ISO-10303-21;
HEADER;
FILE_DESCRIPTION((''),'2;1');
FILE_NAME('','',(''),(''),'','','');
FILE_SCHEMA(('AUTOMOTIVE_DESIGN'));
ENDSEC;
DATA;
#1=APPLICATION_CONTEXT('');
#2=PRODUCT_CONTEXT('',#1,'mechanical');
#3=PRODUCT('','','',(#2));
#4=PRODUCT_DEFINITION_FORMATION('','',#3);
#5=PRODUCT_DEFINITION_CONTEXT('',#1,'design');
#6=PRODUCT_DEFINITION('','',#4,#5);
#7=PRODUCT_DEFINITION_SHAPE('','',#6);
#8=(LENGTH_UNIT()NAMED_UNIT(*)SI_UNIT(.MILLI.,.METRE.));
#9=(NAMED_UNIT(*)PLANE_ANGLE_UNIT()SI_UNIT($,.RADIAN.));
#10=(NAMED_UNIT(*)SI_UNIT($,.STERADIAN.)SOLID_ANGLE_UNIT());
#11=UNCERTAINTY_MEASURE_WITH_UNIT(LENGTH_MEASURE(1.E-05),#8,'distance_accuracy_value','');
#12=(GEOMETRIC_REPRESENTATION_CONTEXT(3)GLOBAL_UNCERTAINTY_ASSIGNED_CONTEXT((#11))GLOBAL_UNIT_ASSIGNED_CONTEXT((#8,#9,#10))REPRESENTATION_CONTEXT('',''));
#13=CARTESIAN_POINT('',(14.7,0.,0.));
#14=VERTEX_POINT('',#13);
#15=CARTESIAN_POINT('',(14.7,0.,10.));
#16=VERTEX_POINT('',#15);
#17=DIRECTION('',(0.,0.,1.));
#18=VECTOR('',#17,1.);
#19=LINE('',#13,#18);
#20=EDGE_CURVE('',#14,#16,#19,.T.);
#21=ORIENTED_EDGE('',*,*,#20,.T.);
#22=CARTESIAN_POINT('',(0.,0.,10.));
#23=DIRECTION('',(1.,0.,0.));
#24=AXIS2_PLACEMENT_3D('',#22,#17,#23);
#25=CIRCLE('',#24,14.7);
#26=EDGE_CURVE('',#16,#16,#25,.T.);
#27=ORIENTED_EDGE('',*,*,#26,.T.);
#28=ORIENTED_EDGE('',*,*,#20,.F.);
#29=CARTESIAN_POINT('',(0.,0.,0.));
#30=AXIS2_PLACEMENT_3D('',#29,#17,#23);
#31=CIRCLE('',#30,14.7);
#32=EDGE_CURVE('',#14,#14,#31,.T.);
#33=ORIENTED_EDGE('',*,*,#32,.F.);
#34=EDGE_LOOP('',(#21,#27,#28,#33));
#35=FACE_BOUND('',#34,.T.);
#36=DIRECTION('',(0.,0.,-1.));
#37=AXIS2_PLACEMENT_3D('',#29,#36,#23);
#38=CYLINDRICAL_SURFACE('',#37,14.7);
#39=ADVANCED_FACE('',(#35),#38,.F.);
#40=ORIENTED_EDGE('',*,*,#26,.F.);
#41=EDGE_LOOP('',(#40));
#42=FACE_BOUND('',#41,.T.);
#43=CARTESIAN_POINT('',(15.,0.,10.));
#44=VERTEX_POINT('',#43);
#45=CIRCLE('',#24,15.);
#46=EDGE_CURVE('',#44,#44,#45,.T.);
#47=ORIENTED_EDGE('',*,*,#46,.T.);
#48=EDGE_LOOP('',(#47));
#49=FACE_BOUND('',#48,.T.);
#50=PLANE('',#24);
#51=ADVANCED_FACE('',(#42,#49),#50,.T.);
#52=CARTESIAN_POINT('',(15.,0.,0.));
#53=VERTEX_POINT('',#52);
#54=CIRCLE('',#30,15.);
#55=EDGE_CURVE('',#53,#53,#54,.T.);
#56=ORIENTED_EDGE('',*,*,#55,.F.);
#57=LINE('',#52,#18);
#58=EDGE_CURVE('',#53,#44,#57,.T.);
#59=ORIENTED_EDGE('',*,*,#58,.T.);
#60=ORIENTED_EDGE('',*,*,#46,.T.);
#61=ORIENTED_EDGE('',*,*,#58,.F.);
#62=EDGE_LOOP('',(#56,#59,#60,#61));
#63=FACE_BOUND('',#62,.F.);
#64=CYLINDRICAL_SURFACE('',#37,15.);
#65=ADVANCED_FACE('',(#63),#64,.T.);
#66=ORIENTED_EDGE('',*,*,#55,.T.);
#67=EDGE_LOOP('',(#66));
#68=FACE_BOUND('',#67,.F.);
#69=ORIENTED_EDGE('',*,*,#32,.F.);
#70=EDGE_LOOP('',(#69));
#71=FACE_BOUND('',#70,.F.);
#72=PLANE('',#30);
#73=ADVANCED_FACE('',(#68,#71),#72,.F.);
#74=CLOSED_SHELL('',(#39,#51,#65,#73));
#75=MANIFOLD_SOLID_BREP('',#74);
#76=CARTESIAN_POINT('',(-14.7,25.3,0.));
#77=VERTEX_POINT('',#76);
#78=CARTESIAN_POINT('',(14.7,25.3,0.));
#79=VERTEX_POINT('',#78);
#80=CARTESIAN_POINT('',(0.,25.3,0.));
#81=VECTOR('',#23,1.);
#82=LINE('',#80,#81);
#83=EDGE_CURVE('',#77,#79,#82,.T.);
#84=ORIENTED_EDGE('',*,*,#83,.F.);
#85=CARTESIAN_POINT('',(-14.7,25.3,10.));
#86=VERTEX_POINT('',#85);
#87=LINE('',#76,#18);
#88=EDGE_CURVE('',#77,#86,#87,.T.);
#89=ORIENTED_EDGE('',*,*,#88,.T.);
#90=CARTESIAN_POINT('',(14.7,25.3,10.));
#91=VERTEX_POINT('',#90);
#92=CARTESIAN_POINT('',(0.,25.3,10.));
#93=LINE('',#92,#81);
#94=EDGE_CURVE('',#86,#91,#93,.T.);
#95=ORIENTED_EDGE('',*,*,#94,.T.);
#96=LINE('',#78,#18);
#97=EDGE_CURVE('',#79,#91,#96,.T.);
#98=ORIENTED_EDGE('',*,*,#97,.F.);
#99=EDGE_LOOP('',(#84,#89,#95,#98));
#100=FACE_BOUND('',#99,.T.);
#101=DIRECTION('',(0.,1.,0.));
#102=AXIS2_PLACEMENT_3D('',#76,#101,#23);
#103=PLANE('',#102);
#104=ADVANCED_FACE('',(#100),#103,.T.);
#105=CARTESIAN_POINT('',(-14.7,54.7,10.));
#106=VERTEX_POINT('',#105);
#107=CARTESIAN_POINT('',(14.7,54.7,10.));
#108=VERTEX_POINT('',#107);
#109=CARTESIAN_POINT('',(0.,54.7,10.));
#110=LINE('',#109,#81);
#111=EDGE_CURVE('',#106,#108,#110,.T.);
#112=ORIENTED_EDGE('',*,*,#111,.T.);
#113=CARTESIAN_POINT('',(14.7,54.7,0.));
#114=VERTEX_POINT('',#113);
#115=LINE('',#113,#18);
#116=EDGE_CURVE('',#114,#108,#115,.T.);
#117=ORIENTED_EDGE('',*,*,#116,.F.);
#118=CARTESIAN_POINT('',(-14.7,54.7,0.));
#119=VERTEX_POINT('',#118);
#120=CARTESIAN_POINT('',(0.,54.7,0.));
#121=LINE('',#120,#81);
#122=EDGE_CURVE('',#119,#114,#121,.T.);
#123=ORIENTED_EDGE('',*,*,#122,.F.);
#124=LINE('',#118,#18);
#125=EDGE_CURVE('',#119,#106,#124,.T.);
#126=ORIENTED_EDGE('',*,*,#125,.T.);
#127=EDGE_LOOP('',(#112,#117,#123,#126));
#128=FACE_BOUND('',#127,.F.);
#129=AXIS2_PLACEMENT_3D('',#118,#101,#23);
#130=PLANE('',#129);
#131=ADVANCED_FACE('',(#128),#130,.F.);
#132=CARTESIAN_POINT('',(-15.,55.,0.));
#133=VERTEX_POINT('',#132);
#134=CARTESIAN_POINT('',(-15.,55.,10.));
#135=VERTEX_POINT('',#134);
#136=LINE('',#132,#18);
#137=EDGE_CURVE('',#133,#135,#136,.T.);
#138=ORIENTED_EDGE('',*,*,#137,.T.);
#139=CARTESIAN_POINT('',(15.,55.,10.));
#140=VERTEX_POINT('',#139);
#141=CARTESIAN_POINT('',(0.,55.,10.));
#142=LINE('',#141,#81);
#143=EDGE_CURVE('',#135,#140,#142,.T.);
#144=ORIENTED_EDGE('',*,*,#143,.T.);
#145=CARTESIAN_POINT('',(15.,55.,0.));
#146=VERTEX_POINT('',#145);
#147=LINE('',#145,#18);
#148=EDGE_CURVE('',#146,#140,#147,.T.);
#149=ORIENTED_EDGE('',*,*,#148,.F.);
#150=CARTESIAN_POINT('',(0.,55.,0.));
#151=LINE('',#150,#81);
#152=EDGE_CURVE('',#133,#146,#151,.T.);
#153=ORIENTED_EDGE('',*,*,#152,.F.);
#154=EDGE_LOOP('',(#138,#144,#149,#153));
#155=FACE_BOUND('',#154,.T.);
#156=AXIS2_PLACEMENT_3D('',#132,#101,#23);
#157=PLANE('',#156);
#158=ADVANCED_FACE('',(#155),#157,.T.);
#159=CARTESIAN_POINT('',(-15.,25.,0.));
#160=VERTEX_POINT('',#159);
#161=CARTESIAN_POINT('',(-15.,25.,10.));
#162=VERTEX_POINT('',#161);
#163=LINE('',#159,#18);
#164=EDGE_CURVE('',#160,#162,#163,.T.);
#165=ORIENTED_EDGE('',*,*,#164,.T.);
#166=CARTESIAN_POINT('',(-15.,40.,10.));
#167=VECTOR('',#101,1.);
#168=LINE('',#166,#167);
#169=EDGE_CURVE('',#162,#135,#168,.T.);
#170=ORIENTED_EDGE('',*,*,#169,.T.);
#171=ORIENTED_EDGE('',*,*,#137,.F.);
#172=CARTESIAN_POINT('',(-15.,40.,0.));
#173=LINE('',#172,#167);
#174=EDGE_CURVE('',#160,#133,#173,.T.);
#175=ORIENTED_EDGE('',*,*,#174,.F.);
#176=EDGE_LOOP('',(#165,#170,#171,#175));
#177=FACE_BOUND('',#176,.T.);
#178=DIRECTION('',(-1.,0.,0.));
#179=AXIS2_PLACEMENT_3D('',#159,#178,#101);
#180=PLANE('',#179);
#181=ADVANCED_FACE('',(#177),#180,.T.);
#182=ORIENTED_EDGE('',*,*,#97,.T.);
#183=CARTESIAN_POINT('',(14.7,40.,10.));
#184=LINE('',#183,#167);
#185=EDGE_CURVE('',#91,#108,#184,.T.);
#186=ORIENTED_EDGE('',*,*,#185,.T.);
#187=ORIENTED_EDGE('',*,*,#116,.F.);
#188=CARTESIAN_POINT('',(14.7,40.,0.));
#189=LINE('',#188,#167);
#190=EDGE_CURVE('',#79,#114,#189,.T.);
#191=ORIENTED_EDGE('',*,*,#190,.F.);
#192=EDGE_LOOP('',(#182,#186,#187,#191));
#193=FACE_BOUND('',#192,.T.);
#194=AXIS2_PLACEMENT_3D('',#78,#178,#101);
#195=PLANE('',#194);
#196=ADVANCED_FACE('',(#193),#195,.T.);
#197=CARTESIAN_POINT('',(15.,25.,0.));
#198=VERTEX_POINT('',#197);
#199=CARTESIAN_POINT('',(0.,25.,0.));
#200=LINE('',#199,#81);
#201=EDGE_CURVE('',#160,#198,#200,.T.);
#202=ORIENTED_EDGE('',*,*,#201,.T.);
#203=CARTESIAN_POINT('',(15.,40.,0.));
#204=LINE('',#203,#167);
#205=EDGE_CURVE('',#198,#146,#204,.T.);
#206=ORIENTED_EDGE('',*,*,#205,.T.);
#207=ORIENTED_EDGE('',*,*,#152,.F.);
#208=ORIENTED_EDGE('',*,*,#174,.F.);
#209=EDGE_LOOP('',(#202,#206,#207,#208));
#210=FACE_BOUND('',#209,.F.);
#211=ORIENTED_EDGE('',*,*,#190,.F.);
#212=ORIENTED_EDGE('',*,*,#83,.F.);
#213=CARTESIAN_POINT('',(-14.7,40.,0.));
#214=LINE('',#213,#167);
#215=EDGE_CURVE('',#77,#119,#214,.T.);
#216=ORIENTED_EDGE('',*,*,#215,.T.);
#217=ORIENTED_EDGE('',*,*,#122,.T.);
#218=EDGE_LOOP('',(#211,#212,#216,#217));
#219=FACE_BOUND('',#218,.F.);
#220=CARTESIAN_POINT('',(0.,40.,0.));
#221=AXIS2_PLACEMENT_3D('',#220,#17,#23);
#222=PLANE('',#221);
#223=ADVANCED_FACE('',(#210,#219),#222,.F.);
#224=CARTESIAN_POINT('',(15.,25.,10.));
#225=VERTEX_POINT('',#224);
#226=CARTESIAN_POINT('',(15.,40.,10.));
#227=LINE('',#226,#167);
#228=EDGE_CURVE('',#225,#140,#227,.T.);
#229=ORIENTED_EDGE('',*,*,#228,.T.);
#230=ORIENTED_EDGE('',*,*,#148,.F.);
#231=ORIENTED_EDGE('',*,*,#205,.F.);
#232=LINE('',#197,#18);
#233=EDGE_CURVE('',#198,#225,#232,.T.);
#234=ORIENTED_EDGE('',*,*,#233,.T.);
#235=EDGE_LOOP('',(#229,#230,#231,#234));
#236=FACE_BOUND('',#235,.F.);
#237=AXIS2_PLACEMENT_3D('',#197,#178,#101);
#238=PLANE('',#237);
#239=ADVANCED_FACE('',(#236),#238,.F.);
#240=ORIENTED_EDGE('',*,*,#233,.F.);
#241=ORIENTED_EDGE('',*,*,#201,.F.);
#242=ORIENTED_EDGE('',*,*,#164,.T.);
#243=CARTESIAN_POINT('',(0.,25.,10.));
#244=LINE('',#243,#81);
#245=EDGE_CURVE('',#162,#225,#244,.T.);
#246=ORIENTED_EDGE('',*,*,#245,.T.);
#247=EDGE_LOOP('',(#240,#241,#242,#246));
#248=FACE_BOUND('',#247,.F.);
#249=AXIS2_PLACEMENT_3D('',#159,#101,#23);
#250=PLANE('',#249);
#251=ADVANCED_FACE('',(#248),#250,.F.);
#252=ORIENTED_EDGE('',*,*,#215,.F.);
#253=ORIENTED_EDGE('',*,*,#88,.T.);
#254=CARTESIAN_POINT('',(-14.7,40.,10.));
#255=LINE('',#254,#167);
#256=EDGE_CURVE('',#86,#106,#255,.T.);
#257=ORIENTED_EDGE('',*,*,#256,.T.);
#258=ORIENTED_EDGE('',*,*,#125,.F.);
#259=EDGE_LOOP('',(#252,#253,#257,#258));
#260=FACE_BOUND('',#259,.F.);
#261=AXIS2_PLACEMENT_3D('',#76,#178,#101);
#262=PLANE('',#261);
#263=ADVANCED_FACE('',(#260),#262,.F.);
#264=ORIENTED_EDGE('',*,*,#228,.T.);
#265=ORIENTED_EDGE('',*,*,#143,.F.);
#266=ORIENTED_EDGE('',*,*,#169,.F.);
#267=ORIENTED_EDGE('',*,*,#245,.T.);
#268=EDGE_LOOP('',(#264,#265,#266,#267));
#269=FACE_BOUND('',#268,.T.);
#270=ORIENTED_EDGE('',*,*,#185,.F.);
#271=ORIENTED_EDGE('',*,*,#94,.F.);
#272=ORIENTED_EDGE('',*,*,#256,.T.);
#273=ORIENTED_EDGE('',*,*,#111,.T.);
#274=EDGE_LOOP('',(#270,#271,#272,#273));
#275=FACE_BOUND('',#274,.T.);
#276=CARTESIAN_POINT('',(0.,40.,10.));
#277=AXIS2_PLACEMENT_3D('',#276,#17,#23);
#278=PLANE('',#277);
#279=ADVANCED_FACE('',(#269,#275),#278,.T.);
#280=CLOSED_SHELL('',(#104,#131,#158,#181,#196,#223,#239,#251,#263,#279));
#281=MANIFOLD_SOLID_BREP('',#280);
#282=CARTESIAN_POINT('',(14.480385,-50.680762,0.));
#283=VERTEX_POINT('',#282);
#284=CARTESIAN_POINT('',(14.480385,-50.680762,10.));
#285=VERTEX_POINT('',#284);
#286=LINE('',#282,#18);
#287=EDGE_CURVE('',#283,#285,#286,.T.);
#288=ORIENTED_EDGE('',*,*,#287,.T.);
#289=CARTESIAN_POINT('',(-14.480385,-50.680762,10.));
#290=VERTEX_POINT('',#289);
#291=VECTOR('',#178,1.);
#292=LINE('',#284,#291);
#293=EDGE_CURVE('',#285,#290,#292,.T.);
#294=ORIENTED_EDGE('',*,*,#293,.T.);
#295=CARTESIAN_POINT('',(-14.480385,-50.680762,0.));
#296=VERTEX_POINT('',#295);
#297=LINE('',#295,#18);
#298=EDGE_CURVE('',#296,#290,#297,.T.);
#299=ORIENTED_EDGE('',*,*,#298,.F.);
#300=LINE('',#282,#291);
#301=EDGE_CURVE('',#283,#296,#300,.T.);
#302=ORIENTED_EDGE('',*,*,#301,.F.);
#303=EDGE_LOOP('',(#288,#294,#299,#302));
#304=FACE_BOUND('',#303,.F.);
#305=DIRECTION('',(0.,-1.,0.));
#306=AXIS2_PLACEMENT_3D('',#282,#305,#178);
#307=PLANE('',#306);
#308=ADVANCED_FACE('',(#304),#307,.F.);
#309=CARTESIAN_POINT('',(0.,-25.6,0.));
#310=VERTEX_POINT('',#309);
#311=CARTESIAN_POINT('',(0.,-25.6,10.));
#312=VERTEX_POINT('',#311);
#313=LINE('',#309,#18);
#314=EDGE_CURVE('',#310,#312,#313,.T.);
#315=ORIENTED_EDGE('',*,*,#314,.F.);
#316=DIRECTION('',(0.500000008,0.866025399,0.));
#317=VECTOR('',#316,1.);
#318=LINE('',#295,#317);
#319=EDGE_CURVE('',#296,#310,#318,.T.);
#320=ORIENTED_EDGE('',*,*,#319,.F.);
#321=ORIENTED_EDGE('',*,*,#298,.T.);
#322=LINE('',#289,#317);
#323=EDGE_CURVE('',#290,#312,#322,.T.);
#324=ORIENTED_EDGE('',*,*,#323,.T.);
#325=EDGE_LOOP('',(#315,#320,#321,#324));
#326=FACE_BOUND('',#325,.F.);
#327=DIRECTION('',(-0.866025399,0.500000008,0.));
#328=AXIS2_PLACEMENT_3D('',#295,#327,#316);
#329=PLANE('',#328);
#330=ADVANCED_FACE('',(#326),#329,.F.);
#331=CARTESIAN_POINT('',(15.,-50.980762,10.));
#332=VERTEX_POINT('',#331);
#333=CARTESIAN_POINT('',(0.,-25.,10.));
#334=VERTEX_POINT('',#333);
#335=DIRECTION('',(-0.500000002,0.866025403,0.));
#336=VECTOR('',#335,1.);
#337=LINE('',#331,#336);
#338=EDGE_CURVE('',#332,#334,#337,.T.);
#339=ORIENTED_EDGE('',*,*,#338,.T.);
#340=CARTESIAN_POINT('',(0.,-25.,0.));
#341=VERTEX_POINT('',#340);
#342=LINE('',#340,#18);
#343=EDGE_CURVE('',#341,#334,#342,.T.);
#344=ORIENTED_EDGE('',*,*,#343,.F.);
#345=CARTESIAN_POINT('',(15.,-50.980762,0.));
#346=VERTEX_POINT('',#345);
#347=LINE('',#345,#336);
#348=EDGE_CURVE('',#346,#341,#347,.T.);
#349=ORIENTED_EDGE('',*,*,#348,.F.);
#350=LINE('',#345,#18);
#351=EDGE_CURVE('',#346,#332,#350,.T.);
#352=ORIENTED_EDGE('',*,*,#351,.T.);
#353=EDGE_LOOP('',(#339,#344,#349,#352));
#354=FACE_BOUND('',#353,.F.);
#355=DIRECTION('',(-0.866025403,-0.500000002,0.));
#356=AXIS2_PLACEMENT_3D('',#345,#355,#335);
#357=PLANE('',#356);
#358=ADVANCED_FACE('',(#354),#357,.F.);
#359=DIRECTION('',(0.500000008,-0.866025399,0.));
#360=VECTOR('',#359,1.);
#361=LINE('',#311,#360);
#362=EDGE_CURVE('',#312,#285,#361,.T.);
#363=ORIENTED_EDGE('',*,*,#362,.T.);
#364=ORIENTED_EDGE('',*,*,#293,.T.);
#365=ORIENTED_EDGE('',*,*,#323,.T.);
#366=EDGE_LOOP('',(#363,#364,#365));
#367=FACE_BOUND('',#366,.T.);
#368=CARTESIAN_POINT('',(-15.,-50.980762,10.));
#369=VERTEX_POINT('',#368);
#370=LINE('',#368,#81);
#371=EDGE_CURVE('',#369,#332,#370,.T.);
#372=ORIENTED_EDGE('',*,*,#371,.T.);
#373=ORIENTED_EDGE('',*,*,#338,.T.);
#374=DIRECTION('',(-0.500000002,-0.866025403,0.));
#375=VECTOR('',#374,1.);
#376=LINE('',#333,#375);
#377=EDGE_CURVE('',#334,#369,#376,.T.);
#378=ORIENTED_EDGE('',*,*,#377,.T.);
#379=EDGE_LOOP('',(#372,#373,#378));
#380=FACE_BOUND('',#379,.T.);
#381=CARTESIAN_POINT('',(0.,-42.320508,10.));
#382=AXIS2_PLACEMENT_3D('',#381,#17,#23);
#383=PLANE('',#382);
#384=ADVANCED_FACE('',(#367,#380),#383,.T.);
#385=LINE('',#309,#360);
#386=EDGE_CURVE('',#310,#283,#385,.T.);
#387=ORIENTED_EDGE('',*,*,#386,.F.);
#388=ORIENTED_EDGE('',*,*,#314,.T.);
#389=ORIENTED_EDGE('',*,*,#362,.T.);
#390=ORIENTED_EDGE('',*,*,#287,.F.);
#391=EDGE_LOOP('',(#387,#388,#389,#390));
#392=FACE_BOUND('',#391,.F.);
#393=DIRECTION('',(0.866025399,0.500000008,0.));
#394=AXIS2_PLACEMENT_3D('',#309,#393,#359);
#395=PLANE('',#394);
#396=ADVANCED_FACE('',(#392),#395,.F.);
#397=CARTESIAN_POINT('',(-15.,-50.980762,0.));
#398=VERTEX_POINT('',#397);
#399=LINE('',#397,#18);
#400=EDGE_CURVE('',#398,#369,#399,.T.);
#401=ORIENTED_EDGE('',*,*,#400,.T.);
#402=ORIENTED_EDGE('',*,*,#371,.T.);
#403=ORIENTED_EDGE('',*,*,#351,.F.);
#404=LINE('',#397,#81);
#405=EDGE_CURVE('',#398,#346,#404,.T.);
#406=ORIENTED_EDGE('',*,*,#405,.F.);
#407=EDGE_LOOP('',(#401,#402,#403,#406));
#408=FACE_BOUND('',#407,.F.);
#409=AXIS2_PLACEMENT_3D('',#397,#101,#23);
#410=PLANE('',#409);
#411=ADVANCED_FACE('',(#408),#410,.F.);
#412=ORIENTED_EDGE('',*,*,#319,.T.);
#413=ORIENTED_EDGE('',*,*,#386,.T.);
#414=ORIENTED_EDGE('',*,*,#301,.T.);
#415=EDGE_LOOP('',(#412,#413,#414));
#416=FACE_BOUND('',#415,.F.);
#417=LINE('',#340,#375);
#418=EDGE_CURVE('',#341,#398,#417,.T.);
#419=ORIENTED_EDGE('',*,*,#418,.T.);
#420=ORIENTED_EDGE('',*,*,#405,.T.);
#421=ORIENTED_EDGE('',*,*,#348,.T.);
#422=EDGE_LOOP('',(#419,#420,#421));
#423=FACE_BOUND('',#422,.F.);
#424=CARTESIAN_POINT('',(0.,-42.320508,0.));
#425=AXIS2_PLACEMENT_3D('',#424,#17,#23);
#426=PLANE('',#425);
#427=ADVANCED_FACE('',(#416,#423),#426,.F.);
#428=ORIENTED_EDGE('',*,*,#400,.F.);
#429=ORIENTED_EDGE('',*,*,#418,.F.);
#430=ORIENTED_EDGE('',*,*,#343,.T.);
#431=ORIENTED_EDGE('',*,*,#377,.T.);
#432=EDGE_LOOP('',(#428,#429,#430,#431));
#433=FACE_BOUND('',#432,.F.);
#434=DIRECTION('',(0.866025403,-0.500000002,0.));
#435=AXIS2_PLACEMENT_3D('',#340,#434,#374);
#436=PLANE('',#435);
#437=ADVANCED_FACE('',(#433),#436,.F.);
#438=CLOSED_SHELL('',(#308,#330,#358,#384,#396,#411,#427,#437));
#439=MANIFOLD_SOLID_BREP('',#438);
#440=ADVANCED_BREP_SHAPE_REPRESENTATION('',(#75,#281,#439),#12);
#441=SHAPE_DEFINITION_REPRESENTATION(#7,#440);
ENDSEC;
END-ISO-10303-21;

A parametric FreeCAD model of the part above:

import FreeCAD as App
import Part
import Sketcher

V = App.Vector
Q = App.Units.Quantity

doc = App.newDocument("Part")
params = doc.addObject("Spreadsheet::Sheet", "Params")
for row, (alias, value) in enumerate([
    ("sketch1_diameter", "30 mm"),
    ("sketch1_diameter2", "29.4 mm"),
    ("sketch1_width", "30 mm"),
    ("sketch1_width2", "29.4 mm"),
    ("pad1_length", "10 mm"),
], start=1):
    params.set(f"A{row}", alias)
    params.set(f"B{row}", "=" + value)
    params.setAlias(f"B{row}", alias)

body = doc.addObject("PartDesign::Body", "Body")
body.AllowCompound = True

# Sketch on XY plane
sketch1 = body.newObject("Sketcher::SketchObject", "Sketch")
sketch1.AttachmentSupport = (doc.getObject("XY_Plane"), [""])
sketch1.MapMode = "FlatFace"
sketch1.addGeometry(Part.Circle(V(0, 0, 0), V(0, 0, 1), 15), False)
sketch1.addGeometry(Part.Circle(V(0, 0, 0), V(0, 0, 1), 15), False)
sketch1.addGeometry(Part.LineSegment(V(-15, 55, 0), V(-15, 25, 0)), False)
sketch1.addGeometry(Part.LineSegment(V(-15, 25, 0), V(15, 25, 0)), False)
sketch1.addGeometry(Part.LineSegment(V(15, 25, 0), V(15, 55, 0)), False)
sketch1.addGeometry(Part.LineSegment(V(15, 55, 0), V(-15, 55, 0)), False)
sketch1.addGeometry(Part.LineSegment(V(15, 25, 0), V(-15, 25, 0)), False)
sketch1.addGeometry(Part.LineSegment(V(-15, 25, 0), V(-15, 55, 0)), False)
sketch1.addGeometry(Part.LineSegment(V(-15, 55, 0), V(15, 55, 0)), False)
sketch1.addGeometry(Part.LineSegment(V(15, 55, 0), V(15, 25, 0)), False)
sketch1.addGeometry(Part.LineSegment(V(15, -51, 0), V(0, -25, 0)), False)
sketch1.addGeometry(Part.LineSegment(V(0, -25, 0), V(-15, -51, 0)), False)
sketch1.addGeometry(Part.LineSegment(V(-15, -51, 0), V(15, -51, 0)), False)
sketch1.addGeometry(Part.LineSegment(V(14, -51, 0), V(-14, -51, 0)), False)
sketch1.addGeometry(Part.LineSegment(V(-14, -51, 0), V(0, -26, 0)), False)
sketch1.addGeometry(Part.LineSegment(V(0, -26, 0), V(14, -51, 0)), False)
sketch1.addConstraint(Sketcher.Constraint("Coincident", 2, 2, 3, 1))
sketch1.addConstraint(Sketcher.Constraint("Coincident", 3, 2, 4, 1))
sketch1.addConstraint(Sketcher.Constraint("Coincident", 4, 2, 5, 1))
sketch1.addConstraint(Sketcher.Constraint("Coincident", 5, 2, 2, 1))
sketch1.addConstraint(Sketcher.Constraint("Coincident", 6, 2, 7, 1))
sketch1.addConstraint(Sketcher.Constraint("Coincident", 7, 2, 8, 1))
sketch1.addConstraint(Sketcher.Constraint("Coincident", 8, 2, 9, 1))
sketch1.addConstraint(Sketcher.Constraint("Coincident", 9, 2, 6, 1))
sketch1.addConstraint(Sketcher.Constraint("Coincident", 10, 2, 11, 1))
sketch1.addConstraint(Sketcher.Constraint("Coincident", 11, 2, 12, 1))
sketch1.addConstraint(Sketcher.Constraint("Coincident", 12, 2, 10, 1))
sketch1.addConstraint(Sketcher.Constraint("Coincident", 13, 2, 14, 1))
sketch1.addConstraint(Sketcher.Constraint("Coincident", 14, 2, 15, 1))
sketch1.addConstraint(Sketcher.Constraint("Coincident", 15, 2, 13, 1))
sketch1.addConstraint(Sketcher.Constraint("Vertical", 2))
sketch1.addConstraint(Sketcher.Constraint("Horizontal", 3))
sketch1.addConstraint(Sketcher.Constraint("Vertical", 4))
sketch1.addConstraint(Sketcher.Constraint("Horizontal", 5))
sketch1.addConstraint(Sketcher.Constraint("Horizontal", 6))
sketch1.addConstraint(Sketcher.Constraint("Vertical", 7))
sketch1.addConstraint(Sketcher.Constraint("Horizontal", 8))
sketch1.addConstraint(Sketcher.Constraint("Vertical", 9))
sketch1.addConstraint(Sketcher.Constraint("Horizontal", 12))
sketch1.addConstraint(Sketcher.Constraint("Horizontal", 13))
sketch1.addConstraint(Sketcher.Constraint("Coincident", 0, 3, -1, 1))
sketch1.addConstraint(Sketcher.Constraint("Coincident", 1, 3, -1, 1))
sketch1.addConstraint(Sketcher.Constraint("PointOnObject", 10, 2, -2))
sketch1.addConstraint(Sketcher.Constraint("PointOnObject", 14, 2, -2))
sketch1.addConstraint(Sketcher.Constraint("Parallel", 11, 14))
sketch1.addConstraint(Sketcher.Constraint("Parallel", 10, 15))
sketch1.addConstraint(Sketcher.Constraint("Vertical", 5, 2, 11, 2))
sketch1.addConstraint(Sketcher.Constraint("Vertical", 4, 2, 12, 2))
sketch1.addConstraint(Sketcher.Constraint("Equal", 12, 2))
sketch1.addConstraint(Sketcher.Constraint("Equal", 8, 7))
sketch1.addConstraint(Sketcher.Constraint("Equal", 10, 11))
sketch1.addConstraint(Sketcher.Constraint("Diameter", 0, Q("30 mm")))
sketch1.addConstraint(Sketcher.Constraint("Diameter", 1, Q("29.4 mm")))
sketch1.addConstraint(Sketcher.Constraint("DistanceX", 3, 1, 3, 2, Q("30 mm")))
sketch1.addConstraint(Sketcher.Constraint("Angle", 10, Q("120 deg")))
sketch1.addConstraint(Sketcher.Constraint("DistanceX", 6, 2, 6, 1, Q("29.4 mm")))
sketch1.addConstraint(Sketcher.Constraint("DistanceY", -1, 1, 2, 2, Q("25 mm")))
sketch1.addConstraint(Sketcher.Constraint("DistanceY", 10, 2, -1, 1, Q("25 mm")))
sketch1.addConstraint(Sketcher.Constraint("DistanceX", 6, 2, -1, 1, Q("14.7 mm")))
sketch1.addConstraint(Sketcher.Constraint("DistanceY", -1, 1, 6, 2, Q("25.3 mm")))
sketch1.addConstraint(Sketcher.Constraint("DistanceY", 14, 2, -1, 1, Q("25.6 mm")))
sketch1.addConstraint(Sketcher.Constraint("DistanceY", 11, 2, 13, 2, Q("0.3 mm")))
sketch1.setExpression("Constraints[35]", "Params.sketch1_diameter")
sketch1.setExpression("Constraints[36]", "Params.sketch1_diameter2")
sketch1.setExpression("Constraints[37]", "Params.sketch1_width")
sketch1.setExpression("Constraints[39]", "Params.sketch1_width2")
pad1 = body.newObject("PartDesign::Pad", "Pad")
pad1.Profile = sketch1
pad1.setExpression("Length", "Params.pad1_length")

doc.recompute()
